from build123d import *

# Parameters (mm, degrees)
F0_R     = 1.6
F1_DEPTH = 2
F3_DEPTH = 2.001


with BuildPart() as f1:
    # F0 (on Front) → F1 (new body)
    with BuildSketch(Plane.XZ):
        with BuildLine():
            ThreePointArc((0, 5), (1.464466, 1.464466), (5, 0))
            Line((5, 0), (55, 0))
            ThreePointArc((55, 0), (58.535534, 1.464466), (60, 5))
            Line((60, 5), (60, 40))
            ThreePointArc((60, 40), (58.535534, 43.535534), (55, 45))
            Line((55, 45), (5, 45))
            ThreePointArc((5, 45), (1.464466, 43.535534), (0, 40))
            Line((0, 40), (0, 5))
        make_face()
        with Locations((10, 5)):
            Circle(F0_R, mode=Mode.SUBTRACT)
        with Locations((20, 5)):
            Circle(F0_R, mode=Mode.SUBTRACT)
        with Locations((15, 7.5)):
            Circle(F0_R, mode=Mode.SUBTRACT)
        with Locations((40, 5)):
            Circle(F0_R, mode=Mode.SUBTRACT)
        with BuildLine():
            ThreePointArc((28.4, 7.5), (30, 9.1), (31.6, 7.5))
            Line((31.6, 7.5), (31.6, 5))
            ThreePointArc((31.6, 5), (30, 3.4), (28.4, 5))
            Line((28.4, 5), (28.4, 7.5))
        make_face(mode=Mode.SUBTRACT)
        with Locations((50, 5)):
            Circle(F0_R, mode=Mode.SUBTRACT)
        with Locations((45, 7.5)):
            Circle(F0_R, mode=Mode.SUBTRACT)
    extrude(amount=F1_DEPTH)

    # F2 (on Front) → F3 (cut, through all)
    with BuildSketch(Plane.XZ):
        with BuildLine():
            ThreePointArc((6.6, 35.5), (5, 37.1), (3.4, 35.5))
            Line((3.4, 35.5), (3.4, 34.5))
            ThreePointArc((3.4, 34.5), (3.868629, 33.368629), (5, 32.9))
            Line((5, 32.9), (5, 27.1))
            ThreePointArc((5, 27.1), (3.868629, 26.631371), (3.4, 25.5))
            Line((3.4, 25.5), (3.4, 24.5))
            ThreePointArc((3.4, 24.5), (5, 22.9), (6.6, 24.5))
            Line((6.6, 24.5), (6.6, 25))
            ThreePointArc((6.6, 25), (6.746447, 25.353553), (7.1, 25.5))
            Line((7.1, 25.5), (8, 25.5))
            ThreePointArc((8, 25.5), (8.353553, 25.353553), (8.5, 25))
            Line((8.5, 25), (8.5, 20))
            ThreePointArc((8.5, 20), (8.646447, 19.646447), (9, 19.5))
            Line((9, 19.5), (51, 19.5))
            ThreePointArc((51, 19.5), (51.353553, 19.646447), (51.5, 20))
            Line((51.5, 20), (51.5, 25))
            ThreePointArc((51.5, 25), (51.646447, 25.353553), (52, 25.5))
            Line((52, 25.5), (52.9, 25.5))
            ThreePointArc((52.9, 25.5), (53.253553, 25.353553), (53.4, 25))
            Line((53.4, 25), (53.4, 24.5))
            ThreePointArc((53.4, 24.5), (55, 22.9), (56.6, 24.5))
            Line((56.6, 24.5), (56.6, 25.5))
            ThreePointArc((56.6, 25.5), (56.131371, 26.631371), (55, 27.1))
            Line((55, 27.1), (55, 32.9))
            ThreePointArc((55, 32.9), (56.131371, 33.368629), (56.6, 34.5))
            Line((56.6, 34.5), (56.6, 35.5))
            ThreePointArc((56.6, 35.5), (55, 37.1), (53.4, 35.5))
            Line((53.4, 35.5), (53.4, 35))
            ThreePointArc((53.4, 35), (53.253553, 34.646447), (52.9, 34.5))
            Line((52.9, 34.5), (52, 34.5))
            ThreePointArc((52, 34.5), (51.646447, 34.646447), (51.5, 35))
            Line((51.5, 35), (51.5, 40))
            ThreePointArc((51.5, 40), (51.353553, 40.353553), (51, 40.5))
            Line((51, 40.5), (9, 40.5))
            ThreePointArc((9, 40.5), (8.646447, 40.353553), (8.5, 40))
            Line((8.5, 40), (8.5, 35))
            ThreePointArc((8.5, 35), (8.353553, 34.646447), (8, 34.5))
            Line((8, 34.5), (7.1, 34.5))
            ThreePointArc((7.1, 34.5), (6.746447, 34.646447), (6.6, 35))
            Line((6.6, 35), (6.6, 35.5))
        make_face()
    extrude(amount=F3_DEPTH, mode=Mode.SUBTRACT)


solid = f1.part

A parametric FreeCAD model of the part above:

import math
import FreeCAD as App
import Part
import Sketcher
from FreeCAD import Vector
Q = App.Units.Quantity

doc = App.newDocument("Part")
body = doc.addObject("PartDesign::Body", "Body")

# Sketch on XZ plane
sketch1 = body.newObject("Sketcher::SketchObject", "Sketch")
sketch1.AttachmentSupport = (doc.getObject("XZ_Plane"), [""])
sketch1.MapMode = "FlatFace"
sketch1.addGeometry([
    Part.ArcOfCircle(Part.Circle(Vector(5, 5, 0), Vector(0, 0, 1), 5), math.radians(180), math.radians(270)),  # 0
    Part.LineSegment(Vector(5, 0, 0), Vector(55, 0, 0)),  # 1
    Part.ArcOfCircle(Part.Circle(Vector(55, 5, 0), Vector(0, 0, 1), 5), math.radians(-90), math.radians(0)),  # 2
    Part.LineSegment(Vector(60, 5, 0), Vector(60, 40, 0)),  # 3
    Part.ArcOfCircle(Part.Circle(Vector(55, 40, 0), Vector(0, 0, 1), 5), math.radians(0), math.radians(90)),  # 4
    Part.LineSegment(Vector(55, 45, 0), Vector(5, 45, 0)),  # 5
    Part.ArcOfCircle(Part.Circle(Vector(5, 40, 0), Vector(0, 0, 1), 5), math.radians(90), math.radians(180)),  # 6
    Part.LineSegment(Vector(0, 40, 0), Vector(0, 5, 0)),  # 7
    Part.Circle(Vector(10, 5, 0), Vector(0, 0, 1), 1.6),  # 8
    Part.Circle(Vector(20, 5, 0), Vector(0, 0, 1), 1.6),  # 9
    Part.Circle(Vector(40, 5, 0), Vector(0, 0, 1), 1.6),  # 10
    Part.Circle(Vector(50, 5, 0), Vector(0, 0, 1), 1.6),  # 11
    Part.Circle(Vector(15, 7.5, 0), Vector(0, 0, 1), 1.6),  # 12
    Part.LineSegment(Vector(28.4, 5, 0), Vector(28.4, 7.5, 0)),  # 13
    Part.ArcOfCircle(Part.Circle(Vector(30, 7.5, 0), Vector(0, 0, 1), 1.6), math.radians(0), math.radians(180)),  # 14
    Part.LineSegment(Vector(31.6, 7.5, 0), Vector(31.6, 5, 0)),  # 15
    Part.ArcOfCircle(Part.Circle(Vector(30, 5, 0), Vector(0, 0, 1), 1.6), math.radians(180), math.radians(360)),  # 16
    Part.Circle(Vector(45, 7.5, 0), Vector(0, 0, 1), 1.6),  # 17
], False)
sketch1.addConstraint([
    Sketcher.Constraint("Tangent", 0, 2, 1, 1),
    Sketcher.Constraint("Tangent", 1, 2, 2, 1),
    Sketcher.Constraint("Tangent", 2, 2, 3, 1),
    Sketcher.Constraint("Tangent", 3, 2, 4, 1),
    Sketcher.Constraint("Tangent", 4, 2, 5, 1),
    Sketcher.Constraint("Tangent", 5, 2, 6, 1),
    Sketcher.Constraint("Tangent", 6, 2, 7, 1),
    Sketcher.Constraint("Tangent", 7, 2, 0, 1),
    Sketcher.Constraint("Tangent", 13, 2, 14, 2),
    Sketcher.Constraint("Tangent", 14, 1, 15, 1),
    Sketcher.Constraint("Tangent", 15, 2, 16, 2),
    Sketcher.Constraint("Tangent", 16, 1, 13, 1),
    Sketcher.Constraint("Horizontal", 1),
    Sketcher.Constraint("Vertical", 3),
    Sketcher.Constraint("Horizontal", 5),
    Sketcher.Constraint("Vertical", 7),
    Sketcher.Constraint("Vertical", 13),
    Sketcher.Constraint("Vertical", 15),
    Sketcher.Constraint("Equal", 0, 2),
    Sketcher.Constraint("Equal", 2, 4),
    Sketcher.Constraint("Equal", 4, 6),
    Sketcher.Constraint("Equal", 8, 9),
    Sketcher.Constraint("Equal", 9, 10),
    Sketcher.Constraint("Equal", 10, 11),
    Sketcher.Constraint("Equal", 11, 12),
    Sketcher.Constraint("Equal", 12, 14),
    Sketcher.Constraint("Equal", 16, 17),
    Sketcher.Constraint("PointOnObject", 0, 2, -1),
    Sketcher.Constraint("PointOnObject", 6, 2, -2),
    Sketcher.Constraint("Horizontal", 2, 3, 8, 3),
    Sketcher.Constraint("Horizontal", 8, 3, 9, 3),
    Sketcher.Constraint("Horizontal", 9, 3, 10, 3),
    Sketcher.Constraint("Horizontal", 10, 3, 11, 3),
    Sketcher.Constraint("Horizontal", 12, 3, 14, 3),
    Sketcher.Constraint("Horizontal", 11, 3, 16, 3),
    Sketcher.Constraint("Horizontal", 14, 3, 17, 3),
    Sketcher.Constraint("Radius", 0, Q("5 mm")),
    Sketcher.Constraint("Diameter", 8, Q("3.2 mm")),
    Sketcher.Constraint("DistanceX", 1, 1, 1, 2, Q("50 mm")),
    Sketcher.Constraint("DistanceY", 3, 1, 3, 2, Q("35 mm")),
    Sketcher.Constraint("DistanceY", 13, 1, 13, 2, Q("2.5 mm")),
    Sketcher.Constraint("DistanceX", -1, 1, 8, 3, Q("10 mm")),
    Sketcher.Constraint("DistanceX", -1, 1, 9, 3, Q("20 mm")),
    Sketcher.Constraint("DistanceX", -1, 1, 10, 3, Q("40 mm")),
    Sketcher.Constraint("DistanceX", -1, 1, 11, 3, Q("50 mm")),
    Sketcher.Constraint("DistanceX", -1, 1, 12, 3, Q("15 mm")),
    Sketcher.Constraint("DistanceX", -1, 1, 14, 3, Q("30 mm")),
    Sketcher.Constraint("DistanceX", -1, 1, 17, 3, Q("45 mm")),
])
pad1 = body.newObject("PartDesign::Pad", "Pad")
pad1.Profile = sketch1
pad1.Length = 2

# Sketch on XZ plane
sketch2 = body.newObject("Sketcher::SketchObject", "Sketch001")
sketch2.AttachmentSupport = (doc.getObject("XZ_Plane"), [""])
sketch2.MapMode = "FlatFace"
sketch2.addGeometry([
    Part.ArcOfCircle(Part.Circle(Vector(5, 35.5, 0), Vector(0, 0, 1), 1.6), math.radians(0), math.radians(180)),  # 0
    Part.LineSegment(Vector(3.4, 35.5, 0), Vector(3.4, 34.5, 0)),  # 1
    Part.ArcOfCircle(Part.Circle(Vector(5, 34.5, 0), Vector(0, 0, 1), 1.6), math.radians(180), math.radians(270)),  # 2
    Part.LineSegment(Vector(5, 32.9, 0), Vector(5, 27.1, 0)),  # 3
    Part.ArcOfCircle(Part.Circle(Vector(5, 25.5, 0), Vector(0, 0, 1), 1.6), math.radians(90), math.radians(180)),  # 4
    Part.LineSegment(Vector(3.4, 25.5, 0), Vector(3.4, 24.5, 0)),  # 5
    Part.ArcOfCircle(Part.Circle(Vector(5, 24.5, 0), Vector(0, 0, 1), 1.6), math.radians(180), math.radians(360)),  # 6
    Part.LineSegment(Vector(6.6, 24.5, 0), Vector(6.6, 25, 0)),  # 7
    Part.ArcOfCircle(Part.Circle(Vector(7.1, 25, 0), Vector(0, 0, 1), 0.5), math.radians(90), math.radians(180)),  # 8
    Part.LineSegment(Vector(7.1, 25.5, 0), Vector(8, 25.5, 0)),  # 9
    Part.ArcOfCircle(Part.Circle(Vector(8, 25, 0), Vector(0, 0, 1), 0.5), math.radians(0), math.radians(90)),  # 10
    Part.LineSegment(Vector(8.5, 25, 0), Vector(8.5, 20, 0)),  # 11
    Part.ArcOfCircle(Part.Circle(Vector(9, 20, 0), Vector(0, 0, 1), 0.5), math.radians(-180), math.radians(-90)),  # 12
    Part.LineSegment(Vector(9, 19.5, 0), Vector(51, 19.5, 0)),  # 13
    Part.ArcOfCircle(Part.Circle(Vector(51, 20, 0), Vector(0, 0, 1), 0.5), math.radians(-90), math.radians(0)),  # 14
    Part.LineSegment(Vector(51.5, 20, 0), Vector(51.5, 25, 0)),  # 15
    Part.ArcOfCircle(Part.Circle(Vector(52, 25, 0), Vector(0, 0, 1), 0.5), math.radians(90), math.radians(180)),  # 16
    Part.LineSegment(Vector(52, 25.5, 0), Vector(52.9, 25.5, 0)),  # 17
    Part.ArcOfCircle(Part.Circle(Vector(52.9, 25, 0), Vector(0, 0, 1), 0.5), math.radians(0), math.radians(90)),  # 18
    Part.LineSegment(Vector(53.4, 25, 0), Vector(53.4, 24.5, 0)),  # 19
    Part.ArcOfCircle(Part.Circle(Vector(55, 24.5, 0), Vector(0, 0, 1), 1.6), math.radians(180), math.radians(360)),  # 20
    Part.LineSegment(Vector(56.6, 24.5, 0), Vector(56.6, 25.5, 0)),  # 21
    Part.ArcOfCircle(Part.Circle(Vector(55, 25.5, 0), Vector(0, 0, 1), 1.6), math.radians(0), math.radians(90)),  # 22
    Part.LineSegment(Vector(55, 27.1, 0), Vector(55, 32.9, 0)),  # 23
    Part.ArcOfCircle(Part.Circle(Vector(55, 34.5, 0), Vector(0, 0, 1), 1.6), math.radians(-90), math.radians(0)),  # 24
    Part.LineSegment(Vector(56.6, 34.5, 0), Vector(56.6, 35.5, 0)),  # 25
    Part.ArcOfCircle(Part.Circle(Vector(55, 35.5, 0), Vector(0, 0, 1), 1.6), math.radians(0), math.radians(180)),  # 26
    Part.LineSegment(Vector(53.4, 35.5, 0), Vector(53.4, 35, 0)),  # 27
    Part.ArcOfCircle(Part.Circle(Vector(52.9, 35, 0), Vector(0, 0, 1), 0.5), math.radians(-90), math.radians(0)),  # 28
    Part.LineSegment(Vector(52.9, 34.5, 0), Vector(52, 34.5, 0)),  # 29
    Part.ArcOfCircle(Part.Circle(Vector(52, 35, 0), Vector(0, 0, 1), 0.5), math.radians(-180), math.radians(-90)),  # 30
    Part.LineSegment(Vector(51.5, 35, 0), Vector(51.5, 40, 0)),  # 31
    Part.ArcOfCircle(Part.Circle(Vector(51, 40, 0), Vector(0, 0, 1), 0.5), math.radians(0), math.radians(90)),  # 32
    Part.LineSegment(Vector(51, 40.5, 0), Vector(9, 40.5, 0)),  # 33
    Part.ArcOfCircle(Part.Circle(Vector(9, 40, 0), Vector(0, 0, 1), 0.5), math.radians(90), math.radians(180)),  # 34
    Part.LineSegment(Vector(8.5, 40, 0), Vector(8.5, 35, 0)),  # 35
    Part.ArcOfCircle(Part.Circle(Vector(8, 35, 0), Vector(0, 0, 1), 0.5), math.radians(-90), math.radians(0)),  # 36
    Part.LineSegment(Vector(8, 34.5, 0), Vector(7.1, 34.5, 0)),  # 37
    Part.ArcOfCircle(Part.Circle(Vector(7.1, 35, 0), Vector(0, 0, 1), 0.5), math.radians(-180), math.radians(-90)),  # 38
    Part.LineSegment(Vector(6.6, 35, 0), Vector(6.6, 35.5, 0)),  # 39
], False)
sketch2.addConstraint([
    Sketcher.Constraint("Tangent", 0, 2, 1, 1),
    Sketcher.Constraint("Tangent", 1, 2, 2, 1),
    Sketcher.Constraint("Coincident", 2, 2, 3, 1),
    Sketcher.Constraint("Coincident", 3, 2, 4, 1),
    Sketcher.Constraint("Tangent", 4, 2, 5, 1),
    Sketcher.Constraint("Tangent", 5, 2, 6, 1),
    Sketcher.Constraint("Tangent", 6, 2, 7, 1),
    Sketcher.Constraint("Coincident", 7, 2, 8, 2),
    Sketcher.Constraint("Coincident", 8, 1, 9, 1),
    Sketcher.Constraint("Coincident", 9, 2, 10, 2),
    Sketcher.Constraint("Coincident", 10, 1, 11, 1),
    Sketcher.Constraint("Coincident", 11, 2, 12, 1),
    Sketcher.Constraint("Coincident", 12, 2, 13, 1),
    Sketcher.Constraint("Coincident", 13, 2, 14, 1),
    Sketcher.Constraint("Coincident", 14, 2, 15, 1),
    Sketcher.Constraint("Coincident", 15, 2, 16, 2),
    Sketcher.Constraint("Coincident", 16, 1, 17, 1),
    Sketcher.Constraint("Coincident", 17, 2, 18, 2),
    Sketcher.Constraint("Coincident", 18, 1, 19, 1),
    Sketcher.Constraint("Tangent", 19, 2, 20, 1),
    Sketcher.Constraint("Tangent", 20, 2, 21, 1),
    Sketcher.Constraint("Tangent", 21, 2, 22, 1),
    Sketcher.Constraint("Coincident", 22, 2, 23, 1),
    Sketcher.Constraint("Coincident", 23, 2, 24, 1),
    Sketcher.Constraint("Tangent", 24, 2, 25, 1),
    Sketcher.Constraint("Tangent", 25, 2, 26, 1),
    Sketcher.Constraint("Tangent", 26, 2, 27, 1),
    Sketcher.Constraint("Coincident", 27, 2, 28, 2),
    Sketcher.Constraint("Coincident", 28, 1, 29, 1),
    Sketcher.Constraint("Coincident", 29, 2, 30, 2),
    Sketcher.Constraint("Coincident", 30, 1, 31, 1),
    Sketcher.Constraint("Coincident", 31, 2, 32, 1),
    Sketcher.Constraint("Coincident", 32, 2, 33, 1),
    Sketcher.Constraint("Coincident", 33, 2, 34, 1),
    Sketcher.Constraint("Coincident", 34, 2, 35, 1),
    Sketcher.Constraint("Coincident", 35, 2, 36, 2),
    Sketcher.Constraint("Coincident", 36, 1, 37, 1),
    Sketcher.Constraint("Coincident", 37, 2, 38, 2),
    Sketcher.Constraint("Coincident", 38, 1, 39, 1),
    Sketcher.Constraint("Tangent", 39, 2, 0, 1),
    Sketcher.Constraint("Vertical", 1),
    Sketcher.Constraint("Vertical", 3),
    Sketcher.Constraint("Vertical", 5),
    Sketcher.Constraint("Vertical", 7),
    Sketcher.Constraint("Horizontal", 9),
    Sketcher.Constraint("Vertical", 11),
    Sketcher.Constraint("Horizontal", 13),
    Sketcher.Constraint("Vertical", 15),
    Sketcher.Constraint("Horizontal", 17),
    Sketcher.Constraint("Vertical", 19),
    Sketcher.Constraint("Vertical", 21),
    Sketcher.Constraint("Vertical", 23),
    Sketcher.Constraint("Vertical", 25),
    Sketcher.Constraint("Vertical", 27),
    Sketcher.Constraint("Horizontal", 29),
    Sketcher.Constraint("Vertical", 31),
    Sketcher.Constraint("Horizontal", 33),
    Sketcher.Constraint("Vertical", 35),
    Sketcher.Constraint("Horizontal", 37),
    Sketcher.Constraint("Vertical", 39),
    Sketcher.Constraint("Equal", 0, 2),
    Sketcher.Constraint("Equal", 2, 4),
    Sketcher.Constraint("Equal", 4, 6),
    Sketcher.Constraint("Equal", 8, 10),
    Sketcher.Constraint("Equal", 10, 12),
    Sketcher.Constraint("Equal", 12, 14),
    Sketcher.Constraint("Equal", 14, 16),
    Sketcher.Constraint("Equal", 16, 18),
    Sketcher.Constraint("Equal", 6, 20),
    Sketcher.Constraint("Equal", 20, 22),
    Sketcher.Constraint("Equal", 22, 24),
    Sketcher.Constraint("Equal", 24, 26),
    Sketcher.Constraint("Equal", 18, 28),
    Sketcher.Constraint("Equal", 28, 30),
    Sketcher.Constraint("Equal", 30, 32),
    Sketcher.Constraint("Equal", 32, 34),
    Sketcher.Constraint("Equal", 34, 36),
    Sketcher.Constraint("Equal", 36, 38),
    Sketcher.Constraint("Horizontal", 10, 3, 16, 3),
    Sketcher.Constraint("Horizontal", 6, 3, 20, 3),
    Sketcher.Constraint("Horizontal", 4, 3, 22, 3),
    Sketcher.Constraint("Horizontal", 2, 3, 24, 3),
    Sketcher.Constraint("Horizontal", 0, 3, 26, 3),
    Sketcher.Constraint("Horizontal", 30, 3, 36, 3),
    Sketcher.Constraint("Horizontal", 18, 3, 7, 2),
    Sketcher.Constraint("Horizontal", 4, 2, 8, 1),
    Sketcher.Constraint("Horizontal", 7, 2, 10, 1),
    Sketcher.Constraint("Horizontal", 14, 3, 11, 2),
    Sketcher.Constraint("Horizontal", 11, 2, 14, 2),
    Sketcher.Constraint("Horizontal", 10, 1, 15, 2),
    Sketcher.Constraint("Horizontal", 15, 2, 18, 1),
    Sketcher.Constraint("Horizontal", 38, 3, 27, 2),
    Sketcher.Constraint("Horizontal", 24, 2, 28, 1),
    Sketcher.Constraint("Horizontal", 27, 2, 30, 1),
    Sketcher.Constraint("Horizontal", 34, 3, 31, 2),
    Sketcher.Constraint("Horizontal", 31, 2, 34, 2),
    Sketcher.Constraint("Horizontal", 30, 1, 35, 2),
    Sketcher.Constraint("Horizontal", 35, 2, 38, 1),
    Sketcher.Constraint("Vertical", 2, 3, 4, 3),
    Sketcher.Constraint("Vertical", 22, 3, 24, 3),
    Sketcher.Constraint("Vertical", 16, 3, 30, 3),
    Sketcher.Constraint("Vertical", 12, 3, 34, 3),
    Sketcher.Constraint("Vertical", 6, 3, 2, 2),
    Sketcher.Constraint("Vertical", 38, 3, 8, 1),
    Sketcher.Constraint("Vertical", 36, 3, 9, 2),
    Sketcher.Constraint("Vertical", 34, 3, 12, 2),
    Sketcher.Constraint("Vertical", 32, 3, 13, 2),
    Sketcher.Constraint("Vertical", 30, 3, 16, 1),
    Sketcher.Constraint("Vertical", 28, 3, 17, 2),
    Sketcher.Constraint("Vertical", 26, 3, 22, 2),
    Sketcher.Constraint("Vertical", 17, 2, 28, 1),
    Sketcher.Constraint("Vertical", 16, 1, 29, 2),
    Sketcher.Constraint("Vertical", 13, 2, 32, 2),
    Sketcher.Constraint("Vertical", 12, 2, 33, 2),
    Sketcher.Constraint("Vertical", 9, 2, 36, 1),
    Sketcher.Constraint("Vertical", 8, 1, 37, 2),
    Sketcher.Constraint("Equal", 9, 17),
    Sketcher.Constraint("Equal", 1, 5),
    Sketcher.Constraint("Equal", 15, 31),
    Sketcher.Constraint("Radius", 0, Q("1.6 mm")),
    Sketcher.Constraint("Radius", 8, Q("0.500001 mm")),
    Sketcher.Constraint("DistanceX", 13, 1, 13, 2, Q("42 mm")),
    Sketcher.Constraint("DistanceY", 1, 2, 1, 1, Q("1 mm")),
    Sketcher.Constraint("DistanceY", 11, 2, 11, 1, Q("5 mm")),
    Sketcher.Constraint("DistanceX", 9, 1, 9, 2, Q("0.9 mm")),
    Sketcher.Constraint("DistanceY", 3, 2, 3, 1, Q("5.8 mm")),
    Sketcher.Constraint("DistanceX", -1, 1, 0, 3, Q("5 mm")),
    Sketcher.Constraint("DistanceY", -1, 1, 8, 3, Q("24.999999 mm")),
])
pocket1 = body.newObject("PartDesign::Pocket", "Pocket")
pocket1.Profile = sketch2
pocket1.Type = "ThroughAll"
pocket1.Reversed = True

doc.recompute()
